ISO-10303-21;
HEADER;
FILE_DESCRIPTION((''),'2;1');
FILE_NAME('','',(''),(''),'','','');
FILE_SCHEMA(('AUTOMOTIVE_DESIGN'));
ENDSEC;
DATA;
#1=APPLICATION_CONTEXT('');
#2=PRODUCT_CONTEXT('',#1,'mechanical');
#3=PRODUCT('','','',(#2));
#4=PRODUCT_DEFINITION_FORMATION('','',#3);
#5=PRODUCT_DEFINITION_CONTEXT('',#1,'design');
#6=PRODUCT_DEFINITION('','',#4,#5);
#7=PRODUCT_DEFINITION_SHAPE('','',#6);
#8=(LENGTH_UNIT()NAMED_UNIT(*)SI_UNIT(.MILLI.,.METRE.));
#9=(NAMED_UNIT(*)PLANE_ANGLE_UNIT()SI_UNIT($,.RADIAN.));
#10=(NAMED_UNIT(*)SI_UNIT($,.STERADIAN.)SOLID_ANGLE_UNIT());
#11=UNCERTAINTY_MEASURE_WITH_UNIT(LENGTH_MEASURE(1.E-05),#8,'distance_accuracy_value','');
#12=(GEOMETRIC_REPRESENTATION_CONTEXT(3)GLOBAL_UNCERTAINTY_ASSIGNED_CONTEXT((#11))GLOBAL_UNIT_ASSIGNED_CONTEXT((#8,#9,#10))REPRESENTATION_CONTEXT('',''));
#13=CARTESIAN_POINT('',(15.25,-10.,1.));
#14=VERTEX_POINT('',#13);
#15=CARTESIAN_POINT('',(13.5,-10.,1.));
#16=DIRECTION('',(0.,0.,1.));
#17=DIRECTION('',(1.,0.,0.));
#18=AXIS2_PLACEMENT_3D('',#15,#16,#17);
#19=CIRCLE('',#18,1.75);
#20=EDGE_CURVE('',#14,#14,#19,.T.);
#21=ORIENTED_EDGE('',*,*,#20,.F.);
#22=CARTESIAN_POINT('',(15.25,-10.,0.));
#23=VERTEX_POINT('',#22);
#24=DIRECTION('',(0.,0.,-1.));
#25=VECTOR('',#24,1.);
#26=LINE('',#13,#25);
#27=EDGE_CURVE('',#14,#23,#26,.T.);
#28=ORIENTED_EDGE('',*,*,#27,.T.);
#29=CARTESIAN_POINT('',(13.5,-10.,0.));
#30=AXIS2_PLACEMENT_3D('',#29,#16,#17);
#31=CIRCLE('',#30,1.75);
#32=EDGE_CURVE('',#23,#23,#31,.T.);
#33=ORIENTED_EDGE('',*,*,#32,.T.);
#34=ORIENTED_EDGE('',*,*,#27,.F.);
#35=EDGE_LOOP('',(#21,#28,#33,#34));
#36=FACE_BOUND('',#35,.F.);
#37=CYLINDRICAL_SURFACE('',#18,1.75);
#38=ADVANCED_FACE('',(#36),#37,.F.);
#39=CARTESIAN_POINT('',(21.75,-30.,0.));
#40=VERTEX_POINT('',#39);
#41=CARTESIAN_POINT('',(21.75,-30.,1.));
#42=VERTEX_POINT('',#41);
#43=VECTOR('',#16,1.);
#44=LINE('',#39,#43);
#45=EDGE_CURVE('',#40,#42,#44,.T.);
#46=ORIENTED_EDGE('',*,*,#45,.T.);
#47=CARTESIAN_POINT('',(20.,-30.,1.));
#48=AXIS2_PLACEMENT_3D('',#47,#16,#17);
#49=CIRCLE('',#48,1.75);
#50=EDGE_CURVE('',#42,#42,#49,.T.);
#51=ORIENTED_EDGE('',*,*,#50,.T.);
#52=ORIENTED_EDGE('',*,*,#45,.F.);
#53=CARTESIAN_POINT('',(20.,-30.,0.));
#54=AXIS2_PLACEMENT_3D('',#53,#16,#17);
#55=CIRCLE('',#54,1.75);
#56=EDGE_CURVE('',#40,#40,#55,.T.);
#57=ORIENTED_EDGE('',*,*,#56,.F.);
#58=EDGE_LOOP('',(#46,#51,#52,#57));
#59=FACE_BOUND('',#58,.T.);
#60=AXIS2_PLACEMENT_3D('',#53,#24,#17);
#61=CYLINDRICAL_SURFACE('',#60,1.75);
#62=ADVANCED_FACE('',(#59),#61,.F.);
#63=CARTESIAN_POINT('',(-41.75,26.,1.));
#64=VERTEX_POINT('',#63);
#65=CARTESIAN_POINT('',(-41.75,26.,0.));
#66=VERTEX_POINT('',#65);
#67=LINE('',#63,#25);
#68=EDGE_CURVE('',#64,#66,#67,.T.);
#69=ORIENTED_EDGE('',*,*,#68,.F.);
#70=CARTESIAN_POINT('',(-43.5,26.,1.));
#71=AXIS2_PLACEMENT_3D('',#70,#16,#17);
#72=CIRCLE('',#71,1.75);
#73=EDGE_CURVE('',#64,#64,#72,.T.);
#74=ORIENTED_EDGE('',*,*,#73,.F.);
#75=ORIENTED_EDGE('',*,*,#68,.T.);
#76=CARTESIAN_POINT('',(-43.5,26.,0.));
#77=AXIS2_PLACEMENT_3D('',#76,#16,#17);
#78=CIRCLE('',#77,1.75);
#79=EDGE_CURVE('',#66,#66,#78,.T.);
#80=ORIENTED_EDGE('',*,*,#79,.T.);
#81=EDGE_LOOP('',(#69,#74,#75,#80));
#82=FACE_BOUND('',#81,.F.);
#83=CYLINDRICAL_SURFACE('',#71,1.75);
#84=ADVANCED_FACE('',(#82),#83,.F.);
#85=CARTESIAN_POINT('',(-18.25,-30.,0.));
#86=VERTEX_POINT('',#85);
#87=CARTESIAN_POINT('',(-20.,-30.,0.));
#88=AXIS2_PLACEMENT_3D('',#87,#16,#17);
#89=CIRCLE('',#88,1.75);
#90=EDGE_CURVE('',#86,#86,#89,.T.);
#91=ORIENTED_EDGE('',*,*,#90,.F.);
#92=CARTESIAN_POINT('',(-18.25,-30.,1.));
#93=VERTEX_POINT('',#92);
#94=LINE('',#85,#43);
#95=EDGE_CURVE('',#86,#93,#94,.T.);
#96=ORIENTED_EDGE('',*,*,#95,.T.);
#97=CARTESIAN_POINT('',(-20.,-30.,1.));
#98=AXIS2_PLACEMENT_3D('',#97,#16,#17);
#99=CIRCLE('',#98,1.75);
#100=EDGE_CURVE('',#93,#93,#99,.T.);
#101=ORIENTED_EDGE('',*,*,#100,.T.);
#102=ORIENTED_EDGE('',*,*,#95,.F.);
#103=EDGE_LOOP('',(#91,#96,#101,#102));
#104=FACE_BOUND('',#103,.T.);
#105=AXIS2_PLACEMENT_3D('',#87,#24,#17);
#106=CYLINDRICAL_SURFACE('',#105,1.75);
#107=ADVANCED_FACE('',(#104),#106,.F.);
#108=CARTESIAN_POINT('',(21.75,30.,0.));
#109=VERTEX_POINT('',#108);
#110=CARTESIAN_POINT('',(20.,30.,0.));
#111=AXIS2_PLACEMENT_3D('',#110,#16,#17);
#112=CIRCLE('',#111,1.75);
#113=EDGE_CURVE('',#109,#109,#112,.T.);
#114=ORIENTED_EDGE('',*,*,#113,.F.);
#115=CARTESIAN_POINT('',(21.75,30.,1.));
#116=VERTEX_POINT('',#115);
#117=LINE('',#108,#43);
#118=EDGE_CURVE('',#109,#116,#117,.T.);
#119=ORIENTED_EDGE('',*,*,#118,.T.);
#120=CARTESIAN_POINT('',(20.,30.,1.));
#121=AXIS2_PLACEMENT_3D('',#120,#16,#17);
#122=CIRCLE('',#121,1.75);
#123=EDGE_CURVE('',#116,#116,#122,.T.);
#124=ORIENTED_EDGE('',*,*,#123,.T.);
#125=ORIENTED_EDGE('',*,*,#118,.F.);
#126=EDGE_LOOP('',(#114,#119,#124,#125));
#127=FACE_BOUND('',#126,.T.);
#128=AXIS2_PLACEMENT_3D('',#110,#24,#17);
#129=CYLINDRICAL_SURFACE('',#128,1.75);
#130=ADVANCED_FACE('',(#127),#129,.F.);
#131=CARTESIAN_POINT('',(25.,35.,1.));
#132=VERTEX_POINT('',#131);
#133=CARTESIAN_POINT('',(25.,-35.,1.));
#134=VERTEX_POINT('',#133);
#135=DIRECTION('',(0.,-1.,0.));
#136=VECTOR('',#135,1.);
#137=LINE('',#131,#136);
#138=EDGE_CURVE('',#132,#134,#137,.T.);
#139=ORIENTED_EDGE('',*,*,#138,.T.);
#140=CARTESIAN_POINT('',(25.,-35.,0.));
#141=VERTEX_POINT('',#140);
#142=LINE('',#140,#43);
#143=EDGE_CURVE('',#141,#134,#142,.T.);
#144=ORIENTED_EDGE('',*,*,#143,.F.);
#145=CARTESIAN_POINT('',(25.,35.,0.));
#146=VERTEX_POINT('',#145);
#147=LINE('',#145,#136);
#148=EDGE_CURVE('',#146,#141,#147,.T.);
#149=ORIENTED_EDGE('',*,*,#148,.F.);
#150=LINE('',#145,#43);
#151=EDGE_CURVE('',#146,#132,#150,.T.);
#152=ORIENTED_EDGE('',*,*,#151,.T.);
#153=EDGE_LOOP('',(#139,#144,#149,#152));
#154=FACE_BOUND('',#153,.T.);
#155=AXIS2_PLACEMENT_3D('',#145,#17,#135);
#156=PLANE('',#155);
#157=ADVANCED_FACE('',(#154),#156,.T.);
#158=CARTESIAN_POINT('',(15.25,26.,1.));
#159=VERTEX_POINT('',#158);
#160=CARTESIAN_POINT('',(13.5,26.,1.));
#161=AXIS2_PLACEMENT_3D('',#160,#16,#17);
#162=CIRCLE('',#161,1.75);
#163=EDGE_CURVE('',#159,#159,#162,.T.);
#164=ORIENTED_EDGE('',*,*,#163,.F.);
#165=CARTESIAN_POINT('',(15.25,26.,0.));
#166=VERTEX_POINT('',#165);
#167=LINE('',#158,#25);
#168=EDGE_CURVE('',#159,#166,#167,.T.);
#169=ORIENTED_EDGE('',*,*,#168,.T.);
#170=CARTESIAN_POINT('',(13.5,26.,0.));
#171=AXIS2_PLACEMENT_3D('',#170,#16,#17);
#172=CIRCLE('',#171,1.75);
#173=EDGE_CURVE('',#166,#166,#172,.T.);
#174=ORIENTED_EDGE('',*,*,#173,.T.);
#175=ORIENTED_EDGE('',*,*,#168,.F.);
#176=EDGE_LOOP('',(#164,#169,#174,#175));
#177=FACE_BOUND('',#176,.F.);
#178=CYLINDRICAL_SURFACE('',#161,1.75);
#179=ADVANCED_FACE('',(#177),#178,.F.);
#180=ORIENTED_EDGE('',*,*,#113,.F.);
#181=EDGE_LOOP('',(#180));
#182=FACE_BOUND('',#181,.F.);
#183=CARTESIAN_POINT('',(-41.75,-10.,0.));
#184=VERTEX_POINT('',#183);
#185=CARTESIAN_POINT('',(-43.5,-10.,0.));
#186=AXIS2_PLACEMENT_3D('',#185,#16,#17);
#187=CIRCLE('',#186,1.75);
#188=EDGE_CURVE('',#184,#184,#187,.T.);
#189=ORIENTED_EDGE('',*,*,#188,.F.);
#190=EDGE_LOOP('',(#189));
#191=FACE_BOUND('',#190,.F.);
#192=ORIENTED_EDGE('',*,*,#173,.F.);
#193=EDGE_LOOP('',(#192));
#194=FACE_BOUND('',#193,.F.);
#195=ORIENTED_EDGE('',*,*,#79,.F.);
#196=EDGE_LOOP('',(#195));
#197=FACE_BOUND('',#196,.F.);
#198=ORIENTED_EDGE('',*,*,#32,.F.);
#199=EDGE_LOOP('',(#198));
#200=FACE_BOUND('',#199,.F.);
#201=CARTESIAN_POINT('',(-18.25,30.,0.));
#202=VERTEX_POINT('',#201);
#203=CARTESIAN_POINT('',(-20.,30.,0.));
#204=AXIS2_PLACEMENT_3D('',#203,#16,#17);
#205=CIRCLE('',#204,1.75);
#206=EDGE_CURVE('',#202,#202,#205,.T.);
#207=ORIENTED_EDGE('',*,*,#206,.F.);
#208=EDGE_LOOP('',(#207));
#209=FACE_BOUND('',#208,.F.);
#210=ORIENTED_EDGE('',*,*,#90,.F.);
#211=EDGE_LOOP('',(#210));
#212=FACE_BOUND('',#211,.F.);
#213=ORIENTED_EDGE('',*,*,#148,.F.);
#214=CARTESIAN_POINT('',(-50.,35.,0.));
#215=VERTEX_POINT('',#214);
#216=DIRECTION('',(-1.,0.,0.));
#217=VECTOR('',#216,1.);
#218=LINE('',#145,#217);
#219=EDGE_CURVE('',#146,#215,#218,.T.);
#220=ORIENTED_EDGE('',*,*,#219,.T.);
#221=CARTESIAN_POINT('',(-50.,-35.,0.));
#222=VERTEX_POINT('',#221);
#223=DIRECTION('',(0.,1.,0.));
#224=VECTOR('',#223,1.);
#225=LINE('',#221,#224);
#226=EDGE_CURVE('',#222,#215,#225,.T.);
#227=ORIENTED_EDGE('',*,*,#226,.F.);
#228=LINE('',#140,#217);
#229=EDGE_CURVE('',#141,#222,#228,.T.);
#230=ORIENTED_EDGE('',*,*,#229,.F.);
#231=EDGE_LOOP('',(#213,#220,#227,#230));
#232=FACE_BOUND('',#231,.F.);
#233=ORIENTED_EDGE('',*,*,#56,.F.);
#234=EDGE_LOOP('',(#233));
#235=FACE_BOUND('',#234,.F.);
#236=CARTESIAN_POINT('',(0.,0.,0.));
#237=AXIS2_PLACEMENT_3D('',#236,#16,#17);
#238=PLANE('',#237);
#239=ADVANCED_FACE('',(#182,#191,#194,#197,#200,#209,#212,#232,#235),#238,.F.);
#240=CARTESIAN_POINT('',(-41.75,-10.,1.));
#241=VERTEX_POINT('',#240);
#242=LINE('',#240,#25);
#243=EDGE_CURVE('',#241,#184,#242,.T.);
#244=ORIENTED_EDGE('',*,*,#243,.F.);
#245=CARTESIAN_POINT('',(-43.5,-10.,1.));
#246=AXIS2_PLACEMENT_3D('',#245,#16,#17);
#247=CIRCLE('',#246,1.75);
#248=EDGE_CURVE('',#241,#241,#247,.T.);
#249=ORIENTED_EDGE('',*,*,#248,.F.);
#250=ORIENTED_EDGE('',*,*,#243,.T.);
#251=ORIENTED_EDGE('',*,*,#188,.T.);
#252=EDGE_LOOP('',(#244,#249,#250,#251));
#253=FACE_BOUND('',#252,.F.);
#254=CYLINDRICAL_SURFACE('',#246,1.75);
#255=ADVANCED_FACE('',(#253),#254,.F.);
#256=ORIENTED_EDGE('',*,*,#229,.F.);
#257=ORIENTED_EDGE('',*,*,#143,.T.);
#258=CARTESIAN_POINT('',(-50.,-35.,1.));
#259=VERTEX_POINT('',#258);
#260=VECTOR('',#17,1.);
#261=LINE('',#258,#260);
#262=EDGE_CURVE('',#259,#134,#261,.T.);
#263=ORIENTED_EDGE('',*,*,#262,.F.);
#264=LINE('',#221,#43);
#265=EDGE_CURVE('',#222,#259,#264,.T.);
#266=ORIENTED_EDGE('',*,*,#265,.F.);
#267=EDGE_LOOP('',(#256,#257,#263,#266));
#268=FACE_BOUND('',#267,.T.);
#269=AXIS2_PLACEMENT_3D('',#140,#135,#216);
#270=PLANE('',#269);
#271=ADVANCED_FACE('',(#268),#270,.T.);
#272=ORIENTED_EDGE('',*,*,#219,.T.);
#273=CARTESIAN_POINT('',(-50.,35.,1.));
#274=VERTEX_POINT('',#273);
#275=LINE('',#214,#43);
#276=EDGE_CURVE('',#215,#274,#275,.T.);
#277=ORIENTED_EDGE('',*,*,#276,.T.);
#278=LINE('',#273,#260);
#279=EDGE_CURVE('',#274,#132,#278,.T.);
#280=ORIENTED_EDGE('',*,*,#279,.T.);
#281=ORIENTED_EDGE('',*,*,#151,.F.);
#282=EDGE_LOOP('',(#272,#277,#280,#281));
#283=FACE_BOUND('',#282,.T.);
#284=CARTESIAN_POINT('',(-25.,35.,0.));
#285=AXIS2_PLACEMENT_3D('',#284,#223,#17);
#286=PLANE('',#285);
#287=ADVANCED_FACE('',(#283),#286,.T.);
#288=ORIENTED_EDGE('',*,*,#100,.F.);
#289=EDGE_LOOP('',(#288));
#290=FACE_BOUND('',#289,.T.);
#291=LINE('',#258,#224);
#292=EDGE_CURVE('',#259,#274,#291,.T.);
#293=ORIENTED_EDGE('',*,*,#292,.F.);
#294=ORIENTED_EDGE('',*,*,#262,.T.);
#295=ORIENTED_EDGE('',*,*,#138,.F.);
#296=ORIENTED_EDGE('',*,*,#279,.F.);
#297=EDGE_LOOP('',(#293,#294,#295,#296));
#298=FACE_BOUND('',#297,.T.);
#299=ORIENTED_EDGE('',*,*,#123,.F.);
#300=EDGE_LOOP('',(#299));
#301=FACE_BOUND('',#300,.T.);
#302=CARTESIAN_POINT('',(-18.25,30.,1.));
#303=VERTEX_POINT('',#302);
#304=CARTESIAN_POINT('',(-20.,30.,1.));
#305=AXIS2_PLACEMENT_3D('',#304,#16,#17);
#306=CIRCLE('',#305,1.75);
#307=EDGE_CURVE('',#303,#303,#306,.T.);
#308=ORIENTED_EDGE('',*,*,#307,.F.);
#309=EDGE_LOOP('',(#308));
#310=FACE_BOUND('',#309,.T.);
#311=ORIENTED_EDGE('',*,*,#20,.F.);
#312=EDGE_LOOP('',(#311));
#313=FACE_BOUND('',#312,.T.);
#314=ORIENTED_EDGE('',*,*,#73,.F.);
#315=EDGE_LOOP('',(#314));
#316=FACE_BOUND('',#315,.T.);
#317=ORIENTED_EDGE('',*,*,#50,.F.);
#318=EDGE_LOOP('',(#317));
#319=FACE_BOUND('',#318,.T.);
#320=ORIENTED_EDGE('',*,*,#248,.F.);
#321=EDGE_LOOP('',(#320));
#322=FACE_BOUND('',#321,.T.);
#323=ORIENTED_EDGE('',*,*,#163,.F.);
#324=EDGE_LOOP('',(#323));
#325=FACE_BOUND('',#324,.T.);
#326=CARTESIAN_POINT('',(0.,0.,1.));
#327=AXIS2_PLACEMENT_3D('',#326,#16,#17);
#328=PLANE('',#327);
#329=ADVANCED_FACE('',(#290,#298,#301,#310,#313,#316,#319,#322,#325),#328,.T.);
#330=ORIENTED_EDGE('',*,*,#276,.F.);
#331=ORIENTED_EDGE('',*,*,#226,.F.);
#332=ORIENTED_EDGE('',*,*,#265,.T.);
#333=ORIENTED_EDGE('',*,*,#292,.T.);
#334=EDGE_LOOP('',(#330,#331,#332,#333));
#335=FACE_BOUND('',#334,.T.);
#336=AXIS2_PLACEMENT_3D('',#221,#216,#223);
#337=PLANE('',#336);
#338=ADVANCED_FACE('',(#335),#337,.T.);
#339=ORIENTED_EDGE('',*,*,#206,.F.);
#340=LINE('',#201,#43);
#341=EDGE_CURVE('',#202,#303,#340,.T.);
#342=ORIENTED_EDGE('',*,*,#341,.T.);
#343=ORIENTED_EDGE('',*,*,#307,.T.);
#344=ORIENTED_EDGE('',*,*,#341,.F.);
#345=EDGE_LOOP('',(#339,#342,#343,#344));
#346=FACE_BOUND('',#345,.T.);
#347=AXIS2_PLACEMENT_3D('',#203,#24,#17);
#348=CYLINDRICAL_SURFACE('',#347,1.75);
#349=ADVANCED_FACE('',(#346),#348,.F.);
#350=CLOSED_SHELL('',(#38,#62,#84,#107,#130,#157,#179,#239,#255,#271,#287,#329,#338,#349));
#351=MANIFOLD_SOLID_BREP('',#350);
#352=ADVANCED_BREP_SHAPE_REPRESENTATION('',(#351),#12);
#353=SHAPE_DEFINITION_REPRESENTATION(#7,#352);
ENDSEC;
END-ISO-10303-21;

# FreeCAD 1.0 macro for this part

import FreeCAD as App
import Part
import Sketcher

doc = App.newDocument("Part")
params = doc.addObject("Spreadsheet::Sheet", "Params")
for row, (alias, value) in enumerate([
    ("sketch1_diameter", "3.5 mm"),
    ("sketch1_height", "70 mm"),
    ("pad1_length", "1 mm"),
    ("sketch2_diameter", "3.5 mm"),
    ("pocket1_length", "1 mm"),
], start=1):
    params.set(f"A{row}", alias)
    params.set(f"B{row}", "=" + value)
    params.setAlias(f"B{row}", alias)

body = doc.addObject("PartDesign::Body", "Body")

sketch1 = doc.addObject("Sketcher::SketchObject", "Sketch")
body.addObject(sketch1)
sketch1.AttachmentSupport = (doc.XY_Plane, [""])
sketch1.MapMode = "FlatFace"
sketch1.addGeometry(Part.LineSegment(App.Vector(25, 35, 0), App.Vector(-50, 35, 0)), False)
sketch1.addGeometry(Part.LineSegment(App.Vector(-50, 35, 0), App.Vector(-50, -35, 0)), False)
sketch1.addGeometry(Part.LineSegment(App.Vector(-50, -35, 0), App.Vector(25, -35, 0)), False)
sketch1.addGeometry(Part.LineSegment(App.Vector(25, -35, 0), App.Vector(25, 35, 0)), False)
sketch1.addGeometry(Part.Circle(App.Vector(-20, -30, 0), App.Vector(0, 0, 1), 1.75), False)
sketch1.addGeometry(Part.Circle(App.Vector(20, -30, 0), App.Vector(0, 0, 1), 1.75), False)
sketch1.addGeometry(Part.Circle(App.Vector(-20, 30, 0), App.Vector(0, 0, 1), 1.75), False)
sketch1.addGeometry(Part.Circle(App.Vector(20, 30, 0), App.Vector(0, 0, 1), 1.75), False)
sketch1.addConstraint(Sketcher.Constraint("Coincident", 0, 2, 1, 1))
sketch1.addConstraint(Sketcher.Constraint("Coincident", 1, 2, 2, 1))
sketch1.addConstraint(Sketcher.Constraint("Coincident", 2, 2, 3, 1))
sketch1.addConstraint(Sketcher.Constraint("Coincident", 3, 2, 0, 1))
sketch1.addConstraint(Sketcher.Constraint("Horizontal", 0))
sketch1.addConstraint(Sketcher.Constraint("Vertical", 1))
sketch1.addConstraint(Sketcher.Constraint("Horizontal", 2))
sketch1.addConstraint(Sketcher.Constraint("Vertical", 3))
sketch1.addConstraint(Sketcher.Constraint("Equal", 4, 5))
sketch1.addConstraint(Sketcher.Constraint("Equal", 5, 6))
sketch1.addConstraint(Sketcher.Constraint("Equal", 6, 7))
sketch1.addConstraint(Sketcher.Constraint("Symmetric", 5, 3, 6, 3, -1, 1))
sketch1.addConstraint(Sketcher.Constraint("Symmetric", 4, 3, 7, 3, -1, 1))
sketch1.addConstraint(Sketcher.Constraint("Symmetric", 4, 3, 5, 3, -2))
sketch1.addConstraint(Sketcher.Constraint("Diameter", 4, 3.5))
sketch1.addConstraint(Sketcher.Constraint("DistanceY", 1, 2, 1, 1, 70.0))
sketch1.addConstraint(Sketcher.Constraint("DistanceX", 0, 2, -1, 1, 50.0))
sketch1.addConstraint(Sketcher.Constraint("DistanceY", 6, 3, 0, 2, 5.0))
sketch1.addConstraint(Sketcher.Constraint("DistanceX", 0, 2, 7, 3, 70.0))
sketch1.addConstraint(Sketcher.Constraint("DistanceY", 1, 2, 4, 3, 5.0))
sketch1.addConstraint(Sketcher.Constraint("DistanceX", 5, 3, 2, 2, 5.0))
sketch1.setExpression("Constraints[14]", "Params.sketch1_diameter")
sketch1.setExpression("Constraints[15]", "Params.sketch1_height")
pad1 = doc.addObject("PartDesign::Pad", "Pad")
body.addObject(pad1)
pad1.Profile = sketch1
pad1.setExpression("Length", "Params.pad1_length")

sketch2 = doc.addObject("Sketcher::SketchObject", "Sketch001")
body.addObject(sketch2)
sketch2.AttachmentSupport = (doc.XY_Plane, [""])
sketch2.MapMode = "FlatFace"
sketch2.AttachmentOffset = App.Placement(App.Vector(0, 0, 1), App.Rotation())
sketch2.addGeometry(Part.Circle(App.Vector(-43.5, 26, 0), App.Vector(0, 0, 1), 1.75), False)
sketch2.addGeometry(Part.Circle(App.Vector(13.5, 26, 0), App.Vector(0, 0, 1), 1.75), False)
sketch2.addGeometry(Part.Circle(App.Vector(13.5, -10, 0), App.Vector(0, 0, 1), 1.75), False)
sketch2.addGeometry(Part.Circle(App.Vector(-43.5, -10, 0), App.Vector(0, 0, 1), 1.75), False)
sketch2.addConstraint(Sketcher.Constraint("Equal", 0, 1))
sketch2.addConstraint(Sketcher.Constraint("Equal", 1, 2))
sketch2.addConstraint(Sketcher.Constraint("Equal", 2, 3))
sketch2.addConstraint(Sketcher.Constraint("Horizontal", 0, 3, 1, 3))
sketch2.addConstraint(Sketcher.Constraint("Horizontal", 2, 3, 3, 3))
sketch2.addConstraint(Sketcher.Constraint("Vertical", 1, 3, 2, 3))
sketch2.addConstraint(Sketcher.Constraint("Vertical", 0, 3, 3, 3))
sketch2.addConstraint(Sketcher.Constraint("Diameter", 0, 3.5))
sketch2.addConstraint(Sketcher.Constraint("DistanceY", 2, 3, -1, 1, 10.0))
sketch2.addConstraint(Sketcher.Constraint("DistanceX", 0, 3, 1, 3, 57.0))
sketch2.addConstraint(Sketcher.Constraint("DistanceY", 2, 3, 1, 3, 36.0))
sketch2.addConstraint(Sketcher.Constraint("DistanceX", 0, 3, -1, 1, 43.5))
sketch2.setExpression("Constraints[7]", "Params.sketch2_diameter")
pocket1 = doc.addObject("PartDesign::Pocket", "Pocket")
body.addObject(pocket1)
pocket1.Profile = sketch2
pocket1.setExpression("Length", "Params.pocket1_length")

doc.recompute()
